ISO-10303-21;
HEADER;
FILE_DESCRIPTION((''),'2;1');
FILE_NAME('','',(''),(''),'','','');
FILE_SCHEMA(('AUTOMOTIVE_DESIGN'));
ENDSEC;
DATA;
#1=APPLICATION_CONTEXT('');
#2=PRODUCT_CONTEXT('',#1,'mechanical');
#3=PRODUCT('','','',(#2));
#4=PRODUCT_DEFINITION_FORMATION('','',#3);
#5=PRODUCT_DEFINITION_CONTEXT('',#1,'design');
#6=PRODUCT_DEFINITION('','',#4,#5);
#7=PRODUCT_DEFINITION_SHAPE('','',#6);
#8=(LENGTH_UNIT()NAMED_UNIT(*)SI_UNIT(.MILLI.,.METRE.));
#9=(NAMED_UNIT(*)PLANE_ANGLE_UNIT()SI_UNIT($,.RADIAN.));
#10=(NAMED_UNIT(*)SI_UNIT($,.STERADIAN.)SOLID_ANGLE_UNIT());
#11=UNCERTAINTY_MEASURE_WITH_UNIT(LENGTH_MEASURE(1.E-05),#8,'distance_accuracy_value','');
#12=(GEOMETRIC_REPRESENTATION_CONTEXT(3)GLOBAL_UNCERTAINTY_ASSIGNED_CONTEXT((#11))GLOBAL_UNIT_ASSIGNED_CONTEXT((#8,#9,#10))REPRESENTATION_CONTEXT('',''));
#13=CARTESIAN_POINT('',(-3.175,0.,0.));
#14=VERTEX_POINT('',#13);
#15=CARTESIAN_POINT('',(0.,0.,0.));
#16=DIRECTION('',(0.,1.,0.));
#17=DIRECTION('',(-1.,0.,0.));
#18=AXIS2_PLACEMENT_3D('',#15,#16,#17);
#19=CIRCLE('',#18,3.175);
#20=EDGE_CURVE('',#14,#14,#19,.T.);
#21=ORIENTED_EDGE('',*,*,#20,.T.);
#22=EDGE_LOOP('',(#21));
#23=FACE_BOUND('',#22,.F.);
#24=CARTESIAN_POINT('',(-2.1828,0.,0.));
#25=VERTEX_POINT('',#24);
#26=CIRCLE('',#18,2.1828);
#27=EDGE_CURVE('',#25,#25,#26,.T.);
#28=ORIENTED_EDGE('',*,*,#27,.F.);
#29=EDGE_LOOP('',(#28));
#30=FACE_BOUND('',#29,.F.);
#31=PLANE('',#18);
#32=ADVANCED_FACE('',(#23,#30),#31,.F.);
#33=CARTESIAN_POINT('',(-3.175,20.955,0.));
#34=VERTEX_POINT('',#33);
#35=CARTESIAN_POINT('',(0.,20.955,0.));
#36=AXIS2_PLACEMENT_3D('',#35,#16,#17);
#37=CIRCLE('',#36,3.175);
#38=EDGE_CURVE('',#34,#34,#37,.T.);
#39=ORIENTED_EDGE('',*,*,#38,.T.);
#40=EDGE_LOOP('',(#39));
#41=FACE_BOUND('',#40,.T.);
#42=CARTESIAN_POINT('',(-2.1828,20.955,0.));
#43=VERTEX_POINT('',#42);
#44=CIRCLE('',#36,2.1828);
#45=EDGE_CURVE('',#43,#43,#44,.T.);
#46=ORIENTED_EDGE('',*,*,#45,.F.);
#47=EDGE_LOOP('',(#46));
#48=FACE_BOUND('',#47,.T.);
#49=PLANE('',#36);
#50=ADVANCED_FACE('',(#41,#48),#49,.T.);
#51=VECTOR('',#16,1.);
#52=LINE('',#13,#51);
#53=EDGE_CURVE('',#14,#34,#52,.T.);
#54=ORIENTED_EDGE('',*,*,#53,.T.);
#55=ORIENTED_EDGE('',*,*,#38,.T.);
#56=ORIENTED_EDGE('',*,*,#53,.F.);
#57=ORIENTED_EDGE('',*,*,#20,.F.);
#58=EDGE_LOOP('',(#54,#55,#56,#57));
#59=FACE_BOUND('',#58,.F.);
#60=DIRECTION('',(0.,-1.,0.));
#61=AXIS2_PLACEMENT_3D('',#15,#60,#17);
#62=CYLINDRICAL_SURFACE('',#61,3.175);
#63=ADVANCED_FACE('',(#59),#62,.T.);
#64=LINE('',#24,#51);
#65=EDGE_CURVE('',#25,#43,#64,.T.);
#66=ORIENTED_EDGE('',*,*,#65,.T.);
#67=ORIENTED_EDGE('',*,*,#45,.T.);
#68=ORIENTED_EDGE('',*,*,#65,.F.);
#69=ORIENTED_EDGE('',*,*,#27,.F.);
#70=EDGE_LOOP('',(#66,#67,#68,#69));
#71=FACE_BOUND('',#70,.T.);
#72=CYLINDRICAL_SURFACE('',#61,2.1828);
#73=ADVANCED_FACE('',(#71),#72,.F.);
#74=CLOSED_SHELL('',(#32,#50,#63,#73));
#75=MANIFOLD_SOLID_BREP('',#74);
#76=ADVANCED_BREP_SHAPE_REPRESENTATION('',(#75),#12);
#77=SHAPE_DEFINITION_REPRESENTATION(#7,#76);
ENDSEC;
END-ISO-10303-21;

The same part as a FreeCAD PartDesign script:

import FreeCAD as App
import Part
import Sketcher
Q = App.Units.Quantity

doc = App.newDocument("Part")
body = doc.addObject("PartDesign::Body", "Body")

# Sketch on XZ plane
sketch1 = body.newObject("Sketcher::SketchObject", "Sketch")
sketch1.AttachmentSupport = (doc.getObject("XZ_Plane"), [""])
sketch1.MapMode = "FlatFace"
sketch1.addGeometry([
    Part.Circle(App.Vector(0, 0, 0), App.Vector(0, 0, 1), 3.2),
    Part.Circle(App.Vector(0, 0, 0), App.Vector(0, 0, 1), 2.2),
], False)
sketch1.addConstraint([
    Sketcher.Constraint("Coincident", 0, 3, -1, 1),
    Sketcher.Constraint("Coincident", 1, 3, -1, 1),
    Sketcher.Constraint("Diameter", 0, Q("0.25 in")),
    Sketcher.Constraint("Diameter", 1, Q("0.171874 in")),
])
pad1 = body.newObject("PartDesign::Pad", "Pad")
pad1.Profile = sketch1
pad1.Length = Q("0.825 in")
pad1.Reversed = True

doc.recompute()
